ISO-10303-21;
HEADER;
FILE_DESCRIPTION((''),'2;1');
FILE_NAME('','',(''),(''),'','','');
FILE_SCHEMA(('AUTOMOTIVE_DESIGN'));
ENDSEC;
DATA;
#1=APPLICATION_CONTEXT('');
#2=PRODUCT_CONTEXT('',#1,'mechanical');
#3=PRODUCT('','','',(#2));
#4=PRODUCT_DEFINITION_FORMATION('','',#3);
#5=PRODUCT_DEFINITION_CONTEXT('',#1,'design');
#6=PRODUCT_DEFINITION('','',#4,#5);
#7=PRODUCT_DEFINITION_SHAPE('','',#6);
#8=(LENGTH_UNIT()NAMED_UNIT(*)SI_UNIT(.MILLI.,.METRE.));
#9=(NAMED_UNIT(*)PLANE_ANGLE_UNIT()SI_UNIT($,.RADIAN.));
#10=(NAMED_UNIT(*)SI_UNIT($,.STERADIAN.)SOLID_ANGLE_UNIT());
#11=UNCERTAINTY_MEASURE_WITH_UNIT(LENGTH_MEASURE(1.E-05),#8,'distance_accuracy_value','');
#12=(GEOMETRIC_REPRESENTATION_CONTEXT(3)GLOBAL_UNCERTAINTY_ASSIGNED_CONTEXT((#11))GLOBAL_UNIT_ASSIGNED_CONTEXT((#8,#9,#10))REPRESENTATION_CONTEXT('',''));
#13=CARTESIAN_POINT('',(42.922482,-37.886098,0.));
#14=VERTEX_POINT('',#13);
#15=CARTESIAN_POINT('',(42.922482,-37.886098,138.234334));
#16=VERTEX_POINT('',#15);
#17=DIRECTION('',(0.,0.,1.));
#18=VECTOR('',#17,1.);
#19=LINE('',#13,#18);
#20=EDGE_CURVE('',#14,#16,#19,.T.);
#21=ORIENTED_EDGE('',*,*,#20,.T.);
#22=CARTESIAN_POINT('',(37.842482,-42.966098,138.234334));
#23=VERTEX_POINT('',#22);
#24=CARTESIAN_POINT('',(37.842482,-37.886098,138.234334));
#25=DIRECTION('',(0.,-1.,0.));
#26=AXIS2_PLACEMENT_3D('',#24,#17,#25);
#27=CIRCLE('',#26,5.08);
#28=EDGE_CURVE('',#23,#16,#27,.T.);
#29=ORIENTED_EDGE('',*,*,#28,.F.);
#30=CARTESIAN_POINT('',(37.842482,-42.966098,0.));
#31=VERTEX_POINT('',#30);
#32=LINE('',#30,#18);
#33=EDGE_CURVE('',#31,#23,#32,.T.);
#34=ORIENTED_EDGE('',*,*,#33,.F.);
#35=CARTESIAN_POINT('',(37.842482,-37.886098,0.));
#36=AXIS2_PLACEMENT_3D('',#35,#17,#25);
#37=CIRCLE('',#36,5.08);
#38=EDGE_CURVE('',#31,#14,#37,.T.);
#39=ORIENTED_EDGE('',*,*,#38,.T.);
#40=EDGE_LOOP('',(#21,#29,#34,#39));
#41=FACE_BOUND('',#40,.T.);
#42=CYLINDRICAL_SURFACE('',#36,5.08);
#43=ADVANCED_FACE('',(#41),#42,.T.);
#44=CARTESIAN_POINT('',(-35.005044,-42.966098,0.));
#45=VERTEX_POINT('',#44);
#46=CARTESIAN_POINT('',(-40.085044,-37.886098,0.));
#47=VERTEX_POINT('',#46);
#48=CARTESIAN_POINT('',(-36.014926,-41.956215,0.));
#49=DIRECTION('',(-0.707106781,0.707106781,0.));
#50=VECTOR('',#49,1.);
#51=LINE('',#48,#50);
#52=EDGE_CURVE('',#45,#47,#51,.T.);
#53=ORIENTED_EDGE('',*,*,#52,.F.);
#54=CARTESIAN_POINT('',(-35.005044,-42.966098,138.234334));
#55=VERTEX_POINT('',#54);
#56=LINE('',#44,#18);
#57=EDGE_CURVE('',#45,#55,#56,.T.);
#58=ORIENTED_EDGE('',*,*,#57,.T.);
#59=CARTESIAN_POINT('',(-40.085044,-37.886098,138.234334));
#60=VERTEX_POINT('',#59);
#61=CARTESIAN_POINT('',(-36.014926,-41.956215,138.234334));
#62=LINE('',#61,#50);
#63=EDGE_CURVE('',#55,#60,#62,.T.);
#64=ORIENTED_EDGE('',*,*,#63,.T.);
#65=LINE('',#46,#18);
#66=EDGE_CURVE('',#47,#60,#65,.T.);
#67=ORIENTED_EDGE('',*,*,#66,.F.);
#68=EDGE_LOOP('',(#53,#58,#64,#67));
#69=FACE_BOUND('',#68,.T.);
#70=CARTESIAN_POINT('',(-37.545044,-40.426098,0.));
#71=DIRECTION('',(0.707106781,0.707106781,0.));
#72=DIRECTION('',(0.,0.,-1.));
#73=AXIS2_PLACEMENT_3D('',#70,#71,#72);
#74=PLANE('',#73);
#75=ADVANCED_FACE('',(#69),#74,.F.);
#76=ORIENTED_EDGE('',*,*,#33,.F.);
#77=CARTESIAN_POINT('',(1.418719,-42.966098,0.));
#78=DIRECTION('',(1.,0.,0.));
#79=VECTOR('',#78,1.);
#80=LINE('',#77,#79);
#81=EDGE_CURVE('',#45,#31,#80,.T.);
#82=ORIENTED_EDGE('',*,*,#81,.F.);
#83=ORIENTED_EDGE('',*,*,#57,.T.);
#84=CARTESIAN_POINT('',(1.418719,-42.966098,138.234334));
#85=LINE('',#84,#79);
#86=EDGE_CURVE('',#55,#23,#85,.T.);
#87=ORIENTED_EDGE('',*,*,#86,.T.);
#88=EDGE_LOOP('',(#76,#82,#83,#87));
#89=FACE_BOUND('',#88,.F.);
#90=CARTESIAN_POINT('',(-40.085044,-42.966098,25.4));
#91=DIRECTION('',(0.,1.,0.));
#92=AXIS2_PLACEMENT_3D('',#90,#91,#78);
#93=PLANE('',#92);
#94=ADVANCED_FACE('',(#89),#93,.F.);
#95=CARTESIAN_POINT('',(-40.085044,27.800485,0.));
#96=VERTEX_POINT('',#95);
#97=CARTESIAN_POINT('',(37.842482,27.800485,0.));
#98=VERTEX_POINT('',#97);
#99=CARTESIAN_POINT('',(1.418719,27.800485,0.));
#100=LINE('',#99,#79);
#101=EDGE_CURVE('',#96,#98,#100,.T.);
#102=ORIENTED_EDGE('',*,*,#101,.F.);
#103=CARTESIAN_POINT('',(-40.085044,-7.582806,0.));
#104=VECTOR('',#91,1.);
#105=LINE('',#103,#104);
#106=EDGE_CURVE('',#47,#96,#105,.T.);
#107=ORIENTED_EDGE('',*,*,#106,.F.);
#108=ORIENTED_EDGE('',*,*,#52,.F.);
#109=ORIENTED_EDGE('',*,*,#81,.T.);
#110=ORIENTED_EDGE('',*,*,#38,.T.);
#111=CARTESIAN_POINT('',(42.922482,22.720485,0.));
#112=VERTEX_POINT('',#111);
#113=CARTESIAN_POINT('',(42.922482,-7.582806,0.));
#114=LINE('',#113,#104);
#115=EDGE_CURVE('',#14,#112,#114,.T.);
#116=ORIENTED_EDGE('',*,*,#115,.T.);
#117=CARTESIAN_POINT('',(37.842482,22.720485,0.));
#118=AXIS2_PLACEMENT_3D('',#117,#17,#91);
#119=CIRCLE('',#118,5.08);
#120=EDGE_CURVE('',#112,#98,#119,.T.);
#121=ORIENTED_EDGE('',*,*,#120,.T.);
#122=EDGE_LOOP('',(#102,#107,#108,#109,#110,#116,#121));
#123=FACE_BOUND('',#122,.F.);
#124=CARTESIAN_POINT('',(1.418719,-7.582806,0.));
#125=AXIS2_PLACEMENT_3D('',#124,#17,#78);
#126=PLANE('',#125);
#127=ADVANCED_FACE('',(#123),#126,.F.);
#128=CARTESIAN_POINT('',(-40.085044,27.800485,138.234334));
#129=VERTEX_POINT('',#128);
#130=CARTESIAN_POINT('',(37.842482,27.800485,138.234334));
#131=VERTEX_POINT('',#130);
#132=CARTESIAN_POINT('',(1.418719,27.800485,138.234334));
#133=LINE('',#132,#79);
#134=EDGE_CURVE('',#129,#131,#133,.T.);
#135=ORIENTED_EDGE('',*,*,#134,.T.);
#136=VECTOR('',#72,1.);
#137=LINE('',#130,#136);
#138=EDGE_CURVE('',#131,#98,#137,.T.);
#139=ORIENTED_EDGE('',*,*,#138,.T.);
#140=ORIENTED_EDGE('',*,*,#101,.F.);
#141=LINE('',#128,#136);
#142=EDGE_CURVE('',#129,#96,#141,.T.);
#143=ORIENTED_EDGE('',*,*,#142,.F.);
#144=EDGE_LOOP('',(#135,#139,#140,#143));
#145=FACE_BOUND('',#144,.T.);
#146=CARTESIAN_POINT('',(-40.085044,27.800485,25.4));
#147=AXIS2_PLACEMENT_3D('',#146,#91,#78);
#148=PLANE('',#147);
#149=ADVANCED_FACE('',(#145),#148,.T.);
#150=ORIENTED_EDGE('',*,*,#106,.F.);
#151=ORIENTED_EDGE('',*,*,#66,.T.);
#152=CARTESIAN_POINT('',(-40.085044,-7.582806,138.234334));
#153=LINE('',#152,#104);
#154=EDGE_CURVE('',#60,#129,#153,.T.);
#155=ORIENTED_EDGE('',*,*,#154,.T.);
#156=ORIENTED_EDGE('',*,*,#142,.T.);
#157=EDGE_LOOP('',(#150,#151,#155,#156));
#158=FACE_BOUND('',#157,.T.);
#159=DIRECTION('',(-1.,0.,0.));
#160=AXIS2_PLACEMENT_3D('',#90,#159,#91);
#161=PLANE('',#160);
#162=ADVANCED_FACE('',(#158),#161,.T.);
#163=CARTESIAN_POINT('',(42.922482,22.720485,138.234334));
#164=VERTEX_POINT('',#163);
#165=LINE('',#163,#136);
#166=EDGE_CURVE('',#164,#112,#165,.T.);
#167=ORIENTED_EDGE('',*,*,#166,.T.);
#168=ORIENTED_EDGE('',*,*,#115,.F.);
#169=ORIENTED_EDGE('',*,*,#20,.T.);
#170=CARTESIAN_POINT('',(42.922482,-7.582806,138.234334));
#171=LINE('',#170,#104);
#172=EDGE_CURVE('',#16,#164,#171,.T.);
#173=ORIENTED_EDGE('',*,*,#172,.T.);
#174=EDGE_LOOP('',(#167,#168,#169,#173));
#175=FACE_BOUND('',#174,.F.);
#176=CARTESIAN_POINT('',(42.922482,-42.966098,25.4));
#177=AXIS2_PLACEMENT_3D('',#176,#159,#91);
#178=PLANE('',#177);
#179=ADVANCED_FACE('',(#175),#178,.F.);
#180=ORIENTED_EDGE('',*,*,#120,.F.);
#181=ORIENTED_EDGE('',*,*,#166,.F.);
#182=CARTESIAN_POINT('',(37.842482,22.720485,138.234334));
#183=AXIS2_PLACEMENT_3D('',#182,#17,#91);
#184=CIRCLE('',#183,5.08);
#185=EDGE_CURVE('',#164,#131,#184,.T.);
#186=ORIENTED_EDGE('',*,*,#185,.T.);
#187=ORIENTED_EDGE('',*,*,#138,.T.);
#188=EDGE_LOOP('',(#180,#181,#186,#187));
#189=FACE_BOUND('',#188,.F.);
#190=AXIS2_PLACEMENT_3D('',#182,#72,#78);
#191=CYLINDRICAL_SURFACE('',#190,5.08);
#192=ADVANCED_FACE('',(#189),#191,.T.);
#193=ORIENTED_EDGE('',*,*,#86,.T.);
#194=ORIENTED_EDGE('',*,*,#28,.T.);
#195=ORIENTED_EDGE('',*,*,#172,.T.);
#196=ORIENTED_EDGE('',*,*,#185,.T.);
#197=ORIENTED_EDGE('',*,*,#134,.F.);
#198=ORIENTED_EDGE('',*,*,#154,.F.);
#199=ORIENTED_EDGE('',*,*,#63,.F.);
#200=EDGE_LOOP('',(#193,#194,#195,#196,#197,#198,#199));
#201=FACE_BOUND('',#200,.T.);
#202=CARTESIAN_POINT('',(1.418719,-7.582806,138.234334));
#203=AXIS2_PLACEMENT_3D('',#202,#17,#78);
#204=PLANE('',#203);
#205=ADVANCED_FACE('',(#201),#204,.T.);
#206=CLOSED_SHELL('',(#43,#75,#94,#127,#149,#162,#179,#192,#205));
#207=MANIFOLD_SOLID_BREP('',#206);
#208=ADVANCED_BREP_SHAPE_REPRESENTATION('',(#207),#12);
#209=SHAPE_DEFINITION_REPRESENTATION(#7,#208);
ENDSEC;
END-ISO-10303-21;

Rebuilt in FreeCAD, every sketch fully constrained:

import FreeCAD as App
import Part
import Sketcher
from FreeCAD import Vector
Q = App.Units.Quantity


def edges_at(feature, points):
    """Names of the edges that pass closest to the given points."""
    edges = feature.Shape.Edges
    near = lambda p: min(range(len(edges)), key=lambda i: edges[i].distToShape(Part.Vertex(*p))[0])
    return sorted({f"Edge{near(p) + 1}" for p in points})


def add_polygon(sketch, points):
    """Adds a closed chain of lines whose ends are joined by coincident constraints."""
    first, n = sketch.GeometryCount, len(points)
    for a, b in zip(points, points[1:] + points[:1]):
        sketch.addGeometry(Part.LineSegment(App.Vector(*a, 0), App.Vector(*b, 0)), False)
    for i in range(n):
        sketch.addConstraint(Sketcher.Constraint("Coincident", first + i, 2, first + (i + 1) % n, 1))

doc = App.newDocument("Part")
body = doc.addObject("PartDesign::Body", "Body")

sketch1 = doc.addObject("Sketcher::SketchObject", "Sketch")
body.addObject(sketch1)
sketch1.AttachmentSupport = (doc.XY_Plane, [""])
sketch1.MapMode = "FlatFace"
add_polygon(sketch1, [(-40.085044, 27.800485), (-40.085044, -42.966098), (42.922482, -42.966098), (42.922482, 27.800485)])
sketch1.addConstraint(Sketcher.Constraint("Vertical", 0))
sketch1.addConstraint(Sketcher.Constraint("Horizontal", 1))
sketch1.addConstraint(Sketcher.Constraint("Vertical", 2))
sketch1.addConstraint(Sketcher.Constraint("Horizontal", 3))
sketch1.addConstraint(Sketcher.Constraint("DistanceX", 1, 1, 1, 2, 83.007526))
sketch1.addConstraint(Sketcher.Constraint("DistanceY", 0, 2, 0, 1, 70.766583))
sketch1.addConstraint(Sketcher.Constraint("DistanceX", -1, 1, 1, 2, 42.922482))
sketch1.addConstraint(Sketcher.Constraint("DistanceY", 0, 2, -1, 1, 42.966098))
pad1 = doc.addObject("PartDesign::Pad", "Pad")
body.addObject(pad1)
pad1.Profile = sketch1
pad1.Length = Q("1 in")

sketch2 = doc.addObject("Sketcher::SketchObject", "Sketch001")
body.addObject(sketch2)
sketch2.AttachmentSupport = (doc.XY_Plane, [""])
sketch2.MapMode = "FlatFace"
sketch2.AttachmentOffset = App.Placement(Vector(0, 0, 1 * 25.4), App.Rotation())
add_polygon(sketch2, [(-40.085044, 27.800485), (-40.085044, -42.966098), (42.922482, -42.966098), (42.922482, 27.800485)])
sketch2.addConstraint(Sketcher.Constraint("Vertical", 0))
sketch2.addConstraint(Sketcher.Constraint("Horizontal", 1))
sketch2.addConstraint(Sketcher.Constraint("Vertical", 2))
sketch2.addConstraint(Sketcher.Constraint("Horizontal", 3))
sketch2.addConstraint(Sketcher.Constraint("DistanceX", 1, 1, 1, 2, 83.007526))
sketch2.addConstraint(Sketcher.Constraint("DistanceY", 0, 2, 0, 1, 70.766583))
sketch2.addConstraint(Sketcher.Constraint("DistanceX", -1, 1, 1, 2, 42.922482))
sketch2.addConstraint(Sketcher.Constraint("DistanceY", 0, 2, -1, 1, 42.966098))
pad2 = doc.addObject("PartDesign::Pad", "Pad001")
body.addObject(pad2)
pad2.Profile = sketch2
pad2.Length = 112.834334
doc.recompute()

fillet = doc.addObject("PartDesign::Fillet", "Fillet")
body.addObject(fillet)
fillet.Base = (pad2, edges_at(pad2, [(42.922, -42.966, 69.117), (42.922, 27.8, 69.117)]))
fillet.Radius = Q("0.2 in")
doc.recompute()

chamfer = doc.addObject("PartDesign::Chamfer", "Chamfer")
body.addObject(chamfer)
chamfer.Base = (fillet, edges_at(fillet, [(-40.085, -42.966, 69.117)]))
chamfer.Size = Q("0.2 in")

doc.recompute()
